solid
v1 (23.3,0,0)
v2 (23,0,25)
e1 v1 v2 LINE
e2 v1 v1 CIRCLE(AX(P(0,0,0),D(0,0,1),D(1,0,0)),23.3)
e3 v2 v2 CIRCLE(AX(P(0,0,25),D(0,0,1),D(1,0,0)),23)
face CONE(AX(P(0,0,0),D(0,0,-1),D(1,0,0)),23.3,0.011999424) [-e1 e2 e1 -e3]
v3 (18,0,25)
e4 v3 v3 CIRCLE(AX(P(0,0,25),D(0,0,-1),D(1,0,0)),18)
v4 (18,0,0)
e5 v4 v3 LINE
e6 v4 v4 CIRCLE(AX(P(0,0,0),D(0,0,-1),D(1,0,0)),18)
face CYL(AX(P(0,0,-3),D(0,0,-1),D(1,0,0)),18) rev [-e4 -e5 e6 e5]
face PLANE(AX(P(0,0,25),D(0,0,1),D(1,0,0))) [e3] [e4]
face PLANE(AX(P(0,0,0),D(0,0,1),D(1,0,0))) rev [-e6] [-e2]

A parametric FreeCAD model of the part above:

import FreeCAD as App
import Part
import Sketcher
from FreeCAD import Vector

doc = App.newDocument("Part")
body = doc.addObject("PartDesign::Body", "Body")

# Sketch on XY plane
sketch1 = doc.addObject("Sketcher::SketchObject", "Sketch")
body.addObject(sketch1)
sketch1.AttachmentSupport = (doc.XY_Plane, [""])
sketch1.MapMode = "FlatFace"
sketch1.AttachmentOffset = App.Placement(Vector(0, 0, -3), App.Rotation())
sketch1.addGeometry(Part.Circle(Vector(0, 0, 0), Vector(0, 0, 1), 18), False)
sketch1.addConstraint(Sketcher.Constraint("Coincident", 0, 3, -1, 1))
sketch1.addConstraint(Sketcher.Constraint("Diameter", 0, 36.0))
pad1 = doc.addObject("PartDesign::Pad", "Pad")
body.addObject(pad1)
pad1.Profile = sketch1
pad1.Length = 30
body2 = doc.addObject("PartDesign::Body", "Body001")

# Sketch on XZ plane
sketch2 = doc.addObject("Sketcher::SketchObject", "Sketch001")
body2.addObject(sketch2)
sketch2.AttachmentSupport = (doc.getObject("XZ_Plane001"), [""])
sketch2.MapMode = "FlatFace"
sketch2.addGeometry(Part.LineSegment(Vector(0, 0, 0), Vector(23, 0, 0)), False)
sketch2.addGeometry(Part.LineSegment(Vector(23, 0, 0), Vector(23, 25, 0)), False)
sketch2.addGeometry(Part.LineSegment(Vector(23, 25, 0), Vector(0, 25, 0)), False)
sketch2.addGeometry(Part.LineSegment(Vector(0, 25, 0), Vector(0, 0, 0)), False)
sketch2.addConstraint(Sketcher.Constraint("Coincident", 0, 2, 1, 1))
sketch2.addConstraint(Sketcher.Constraint("Coincident", 1, 2, 2, 1))
sketch2.addConstraint(Sketcher.Constraint("Coincident", 2, 2, 3, 1))
sketch2.addConstraint(Sketcher.Constraint("Coincident", 3, 2, 0, 1))
sketch2.addConstraint(Sketcher.Constraint("Horizontal", 0))
sketch2.addConstraint(Sketcher.Constraint("Horizontal", 2))
sketch2.addConstraint(Sketcher.Constraint("Vertical", 3))
sketch2.addConstraint(Sketcher.Constraint("Coincident", 3, 2, -1, 1))
sketch2.addConstraint(Sketcher.Constraint("DistanceX", 2, 2, 2, 1, 23.0))
sketch2.addConstraint(Sketcher.Constraint("DistanceY", 3, 2, 3, 1, 25.0))
sketch2.addConstraint(Sketcher.Constraint("DistanceX", 0, 1, 0, 2, 23.3))
revolution = doc.addObject("PartDesign::Revolution", "Revolution")
body2.addObject(revolution)
revolution.Profile = sketch2
revolution.ReferenceAxis = (sketch2, ["V_Axis"])
revolution.Angle = 360
doc.recompute()

boolean = doc.addObject("PartDesign::Boolean", "Boolean")
body2.addObject(boolean)
boolean.Type = "Cut"
boolean.addObjects([body])

doc.recompute()
